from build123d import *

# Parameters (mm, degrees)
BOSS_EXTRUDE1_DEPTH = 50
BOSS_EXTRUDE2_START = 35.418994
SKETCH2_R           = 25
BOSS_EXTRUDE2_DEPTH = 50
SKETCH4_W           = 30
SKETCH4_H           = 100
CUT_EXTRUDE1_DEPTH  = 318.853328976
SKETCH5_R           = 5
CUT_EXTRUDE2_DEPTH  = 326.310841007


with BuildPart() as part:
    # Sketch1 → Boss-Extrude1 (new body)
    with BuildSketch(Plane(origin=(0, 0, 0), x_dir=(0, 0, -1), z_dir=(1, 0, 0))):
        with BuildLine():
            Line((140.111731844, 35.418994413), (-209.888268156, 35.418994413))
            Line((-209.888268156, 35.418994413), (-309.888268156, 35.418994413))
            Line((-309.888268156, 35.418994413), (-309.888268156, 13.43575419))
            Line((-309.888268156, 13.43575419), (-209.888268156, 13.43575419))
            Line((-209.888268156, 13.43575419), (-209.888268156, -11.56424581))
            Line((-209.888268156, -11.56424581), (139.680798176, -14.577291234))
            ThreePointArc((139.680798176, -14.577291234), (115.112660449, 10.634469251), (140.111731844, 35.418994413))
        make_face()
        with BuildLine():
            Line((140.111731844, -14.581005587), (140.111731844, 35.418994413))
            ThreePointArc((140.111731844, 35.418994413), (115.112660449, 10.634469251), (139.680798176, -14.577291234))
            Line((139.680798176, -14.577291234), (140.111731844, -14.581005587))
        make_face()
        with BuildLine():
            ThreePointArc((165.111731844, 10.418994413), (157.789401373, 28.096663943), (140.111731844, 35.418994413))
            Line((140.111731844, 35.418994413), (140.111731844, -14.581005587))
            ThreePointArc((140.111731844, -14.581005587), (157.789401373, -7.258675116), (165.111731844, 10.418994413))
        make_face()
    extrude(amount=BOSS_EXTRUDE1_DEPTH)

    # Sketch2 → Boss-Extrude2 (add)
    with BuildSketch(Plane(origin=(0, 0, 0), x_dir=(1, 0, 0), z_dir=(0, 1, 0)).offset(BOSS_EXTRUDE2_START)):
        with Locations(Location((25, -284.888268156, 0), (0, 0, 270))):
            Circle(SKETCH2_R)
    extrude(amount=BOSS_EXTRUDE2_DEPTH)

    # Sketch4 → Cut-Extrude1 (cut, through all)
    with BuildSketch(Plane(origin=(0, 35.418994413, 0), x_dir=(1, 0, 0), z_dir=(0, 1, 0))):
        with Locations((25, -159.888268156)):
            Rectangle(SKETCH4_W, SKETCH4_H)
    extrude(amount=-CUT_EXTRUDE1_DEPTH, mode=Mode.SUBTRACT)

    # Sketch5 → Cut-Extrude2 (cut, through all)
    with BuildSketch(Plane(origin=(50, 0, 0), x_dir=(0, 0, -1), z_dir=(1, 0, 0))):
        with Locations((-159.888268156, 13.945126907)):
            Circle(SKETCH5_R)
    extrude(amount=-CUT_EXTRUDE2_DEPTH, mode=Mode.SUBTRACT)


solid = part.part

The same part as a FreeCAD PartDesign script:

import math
import FreeCAD as App
import Part
import Sketcher

V = App.Vector
Q = App.Units.Quantity


def add_polygon(sketch, points):
    """Adds a closed chain of lines whose ends are joined by coincident constraints."""
    first, n = sketch.GeometryCount, len(points)
    for a, b in zip(points, points[1:] + points[:1]):
        sketch.addGeometry(Part.LineSegment(App.Vector(*a, 0), App.Vector(*b, 0)), False)
    for i in range(n):
        sketch.addConstraint(Sketcher.Constraint("Coincident", first + i, 2, first + (i + 1) % n, 1))

doc = App.newDocument("Part")
params = doc.addObject("Spreadsheet::Sheet", "Params")
for row, (alias, value) in enumerate([
    ("sketch1_radius", "25 mm"),
    ("sketch1_width", "25 mm"),
    ("sketch1_height", "450 mm"),
    ("sketch1_height2", "100 mm"),
    ("pad1_length", "50 mm"),
    ("sketch2_diameter", "50 mm"),
    ("pad2_length", "50 mm"),
    ("sketch3_width", "30 mm"),
    ("sketch3_height", "100 mm"),
    ("sketch4_diameter", "10 mm"),
], start=1):
    params.set(f"A{row}", alias)
    params.set(f"B{row}", "=" + value)
    params.setAlias(f"B{row}", alias)

body = doc.addObject("PartDesign::Body", "Body")

sketch1 = body.newObject("Sketcher::SketchObject", "Sketch")
sketch1.AttachmentSupport = (doc.getObject("YZ_Plane"), [""])
sketch1.MapMode = "FlatFace"
sketch1.addGeometry([
    Part.LineSegment(V(35.42, -140.11, 0), V(35.42, 309.89, 0)),
    Part.LineSegment(V(35.42, 309.89, 0), V(13.44, 309.89, 0)),
    Part.LineSegment(V(13.44, 309.89, 0), V(13.44, 209.89, 0)),
    Part.LineSegment(V(13.44, 209.89, 0), V(-11.56, 209.89, 0)),
    Part.LineSegment(V(-11.56, 209.89, 0), V(-14.58, -139.68, 0)),
    Part.LineSegment(V(-14.58, -139.68, 0), V(-14.58, -140.11, 0)),
    Part.ArcOfCircle(Part.Circle(V(10.42, -140.11, 0), V(0, 0, 1), 25), math.radians(-180), math.radians(-90)),
    Part.ArcOfCircle(Part.Circle(V(10.42, -140.11, 0), V(0, 0, 1), 25), math.radians(-90), math.radians(0)),
], False)
sketch1.addConstraint([
    Sketcher.Constraint("Coincident", 0, 2, 1, 1),
    Sketcher.Constraint("Coincident", 1, 2, 2, 1),
    Sketcher.Constraint("Coincident", 2, 2, 3, 1),
    Sketcher.Constraint("Coincident", 3, 2, 4, 1),
    Sketcher.Constraint("Coincident", 4, 2, 5, 1),
    Sketcher.Constraint("Coincident", 5, 2, 6, 1),
    Sketcher.Constraint("Tangent", 6, 2, 7, 1),
    Sketcher.Constraint("Tangent", 7, 2, 0, 1),
    Sketcher.Constraint("Vertical", 0),
    Sketcher.Constraint("Horizontal", 1),
    Sketcher.Constraint("Vertical", 2),
    Sketcher.Constraint("Horizontal", 3),
    Sketcher.Constraint("Equal", 6, 7),
    Sketcher.Constraint("Parallel", 4, 5),
    Sketcher.Constraint("Horizontal", 7, 3, 5, 2),
    Sketcher.Constraint("Vertical", 7, 3, 6, 2),
    Sketcher.Constraint("Radius", 6, Q("25 mm")),
    Sketcher.Constraint("DistanceX", 3, 2, 3, 1, Q("25 mm")),
    Sketcher.Constraint("DistanceY", 0, 1, 0, 2, Q("450 mm")),
    Sketcher.Constraint("DistanceY", 2, 2, 2, 1, Q("100 mm")),
    Sketcher.Constraint("DistanceX", 1, 2, 1, 1, Q("21.98324 mm")),
    Sketcher.Constraint("DistanceY", 4, 2, -1, 1, Q("139.680798 mm")),
    Sketcher.Constraint("Distance", 4, Q("349.582051 mm")),
    Sketcher.Constraint("DistanceX", 4, 2, -1, 1, Q("14.577291 mm")),
])
sketch1.setExpression("Constraints[16]", "Params.sketch1_radius")
sketch1.setExpression("Constraints[17]", "Params.sketch1_width")
sketch1.setExpression("Constraints[18]", "Params.sketch1_height")
sketch1.setExpression("Constraints[19]", "Params.sketch1_height2")
pad1 = body.newObject("PartDesign::Pad", "Pad")
pad1.Profile = sketch1
pad1.setExpression("Length", "Params.pad1_length")

sketch2 = body.newObject("Sketcher::SketchObject", "Sketch001")
sketch2.AttachmentSupport = (doc.getObject("XZ_Plane"), [""])
sketch2.MapMode = "FlatFace"
sketch2.AttachmentOffset = App.Placement(V(0, 0, -35.418994), App.Rotation())
sketch2.addGeometry(Part.Circle(V(25, 285, 0), V(0, 0, 1), 25), False)
sketch2.addConstraint([
    Sketcher.Constraint("Diameter", 0, Q("50 mm")),
    Sketcher.Constraint("DistanceX", -1, 1, 0, 3, Q("25 mm")),
    Sketcher.Constraint("DistanceY", -1, 1, 0, 3, Q("284.888268 mm")),
])
sketch2.setExpression("Constraints[0]", "Params.sketch2_diameter")
pad2 = body.newObject("PartDesign::Pad", "Pad001")
pad2.Profile = sketch2
pad2.setExpression("Length", "Params.pad2_length")
pad2.Reversed = True

sketch3 = body.newObject("Sketcher::SketchObject", "Sketch002")
sketch3.AttachmentSupport = (doc.getObject("XZ_Plane"), [""])
sketch3.MapMode = "FlatFace"
sketch3.AttachmentOffset = App.Placement(V(0, 0, -35.418994), App.Rotation())
add_polygon(sketch3, [(10, 110), (10, 210), (40, 210), (40, 110)])
sketch3.addConstraint([
    Sketcher.Constraint("Vertical", 0),
    Sketcher.Constraint("Horizontal", 1),
    Sketcher.Constraint("Vertical", 2),
    Sketcher.Constraint("Horizontal", 3),
    Sketcher.Constraint("DistanceX", 1, 1, 1, 2, Q("30 mm")),
    Sketcher.Constraint("DistanceY", 0, 1, 0, 2, Q("100 mm")),
    Sketcher.Constraint("DistanceX", -1, 1, 0, 2, Q("10 mm")),
    Sketcher.Constraint("DistanceY", -1, 1, 0, 2, Q("209.888268 mm")),
])
sketch3.setExpression("Constraints[8]", "Params.sketch3_width")
sketch3.setExpression("Constraints[9]", "Params.sketch3_height")
pocket1 = body.newObject("PartDesign::Pocket", "Pocket")
pocket1.Profile = sketch3
pocket1.Type = "ThroughAll"
pocket1.Reversed = True

sketch4 = body.newObject("Sketcher::SketchObject", "Sketch003")
sketch4.AttachmentSupport = (doc.getObject("YZ_Plane"), [""])
sketch4.MapMode = "FlatFace"
sketch4.AttachmentOffset = App.Placement(V(0, 0, 50), App.Rotation())
sketch4.addGeometry(Part.Circle(V(14, 160, 0), V(0, 0, 1), 5), False)
sketch4.addConstraint([
    Sketcher.Constraint("Diameter", 0, Q("10 mm")),
    Sketcher.Constraint("DistanceY", -1, 1, 0, 3, Q("159.888268 mm")),
    Sketcher.Constraint("DistanceX", -1, 1, 0, 3, Q("13.945127 mm")),
])
sketch4.setExpression("Constraints[0]", "Params.sketch4_diameter")
pocket2 = body.newObject("PartDesign::Pocket", "Pocket001")
pocket2.Profile = sketch4
pocket2.Type = "ThroughAll"

doc.recompute()
